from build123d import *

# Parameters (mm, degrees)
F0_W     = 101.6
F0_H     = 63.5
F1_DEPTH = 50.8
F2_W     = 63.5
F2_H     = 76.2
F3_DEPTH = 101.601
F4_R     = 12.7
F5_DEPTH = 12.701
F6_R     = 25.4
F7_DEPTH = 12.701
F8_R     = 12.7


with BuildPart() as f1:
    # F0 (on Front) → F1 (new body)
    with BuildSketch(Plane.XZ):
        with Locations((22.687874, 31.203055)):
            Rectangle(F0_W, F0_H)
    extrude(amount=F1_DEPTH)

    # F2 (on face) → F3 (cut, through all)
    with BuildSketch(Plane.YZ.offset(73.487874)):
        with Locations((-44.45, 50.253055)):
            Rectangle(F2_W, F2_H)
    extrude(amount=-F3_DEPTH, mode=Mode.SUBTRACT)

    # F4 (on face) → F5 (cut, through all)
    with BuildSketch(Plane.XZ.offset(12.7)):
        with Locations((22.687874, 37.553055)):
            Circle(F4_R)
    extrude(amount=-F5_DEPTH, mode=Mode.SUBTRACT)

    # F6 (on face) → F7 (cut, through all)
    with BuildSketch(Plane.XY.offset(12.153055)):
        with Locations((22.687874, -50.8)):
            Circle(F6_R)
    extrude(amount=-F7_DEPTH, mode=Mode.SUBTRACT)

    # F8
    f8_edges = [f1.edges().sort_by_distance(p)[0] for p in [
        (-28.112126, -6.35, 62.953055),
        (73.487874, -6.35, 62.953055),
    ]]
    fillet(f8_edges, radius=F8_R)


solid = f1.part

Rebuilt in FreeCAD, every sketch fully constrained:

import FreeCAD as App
import Part
import Sketcher

V = App.Vector
Q = App.Units.Quantity


def edges_at(feature, points):
    """Names of the edges that pass closest to the given points."""
    edges = feature.Shape.Edges
    near = lambda p: min(range(len(edges)), key=lambda i: edges[i].distToShape(Part.Vertex(*p))[0])
    return sorted({f"Edge{near(p) + 1}" for p in points})


def add_polygon(sketch, points):
    """Adds a closed chain of lines whose ends are joined by coincident constraints."""
    first, n = sketch.GeometryCount, len(points)
    for a, b in zip(points, points[1:] + points[:1]):
        sketch.addGeometry(Part.LineSegment(App.Vector(*a, 0), App.Vector(*b, 0)), False)
    for i in range(n):
        sketch.addConstraint(Sketcher.Constraint("Coincident", first + i, 2, first + (i + 1) % n, 1))

doc = App.newDocument("Part")
params = doc.addObject("Spreadsheet::Sheet", "Params")
for row, (alias, value) in enumerate([
    ("sketch1_width", "4 in"),
    ("sketch1_height", "2.5 in"),
    ("pad1_length", "2 in"),
    ("sketch2_height", "3 in"),
    ("sketch2_width", "2.5 in"),
    ("sketch3_diameter", "1 in"),
    ("sketch4_diameter", "2 in"),
    ("fillet_radius", "0.5 in"),
], start=1):
    params.set(f"A{row}", alias)
    params.set(f"B{row}", "=" + value)
    params.setAlias(f"B{row}", alias)

body = doc.addObject("PartDesign::Body", "Body")

sketch1 = body.newObject("Sketcher::SketchObject", "Sketch")
sketch1.AttachmentSupport = (doc.getObject("XZ_Plane"), [""])
sketch1.MapMode = "FlatFace"
add_polygon(sketch1, [(-28.112126, 62.953055), (-28.112126, -0.546945), (73.487874, -0.546945), (73.487874, 62.953055)])
sketch1.addConstraint(Sketcher.Constraint("Vertical", 0))
sketch1.addConstraint(Sketcher.Constraint("Horizontal", 1))
sketch1.addConstraint(Sketcher.Constraint("Vertical", 2))
sketch1.addConstraint(Sketcher.Constraint("Horizontal", 3))
sketch1.addConstraint(Sketcher.Constraint("DistanceX", 1, 1, 1, 2, Q("4 in")))
sketch1.addConstraint(Sketcher.Constraint("DistanceY", 0, 2, 0, 1, Q("2.5 in")))
sketch1.addConstraint(Sketcher.Constraint("DistanceX", 0, 2, -1, 1, Q("28.112126 mm")))
sketch1.addConstraint(Sketcher.Constraint("DistanceY", 0, 2, -1, 1, Q("0.546945 mm")))
sketch1.setExpression("Constraints[8]", "Params.sketch1_width")
sketch1.setExpression("Constraints[9]", "Params.sketch1_height")
pad1 = body.newObject("PartDesign::Pad", "Pad")
pad1.Profile = sketch1
pad1.setExpression("Length", "Params.pad1_length")

sketch2 = body.newObject("Sketcher::SketchObject", "Sketch001")
sketch2.AttachmentSupport = (doc.getObject("YZ_Plane"), [""])
sketch2.MapMode = "FlatFace"
sketch2.AttachmentOffset = App.Placement(V(0, 0, 73.487874), App.Rotation())
add_polygon(sketch2, [(-76.2, 88.353055), (-76.2, 12.153055), (-12.7, 12.153055), (-12.7, 88.353055)])
sketch2.addConstraint(Sketcher.Constraint("Vertical", 0))
sketch2.addConstraint(Sketcher.Constraint("Horizontal", 1))
sketch2.addConstraint(Sketcher.Constraint("Vertical", 2))
sketch2.addConstraint(Sketcher.Constraint("Horizontal", 3))
sketch2.addConstraint(Sketcher.Constraint("DistanceY", 0, 2, 0, 1, Q("3 in")))
sketch2.addConstraint(Sketcher.Constraint("DistanceX", 1, 1, 1, 2, Q("2.5 in")))
sketch2.addConstraint(Sketcher.Constraint("DistanceX", 0, 2, -1, 1, Q("3 in")))
sketch2.addConstraint(Sketcher.Constraint("DistanceY", -1, 1, 0, 2, Q("12.153055 mm")))
sketch2.setExpression("Constraints[8]", "Params.sketch2_height")
sketch2.setExpression("Constraints[9]", "Params.sketch2_width")
pocket1 = body.newObject("PartDesign::Pocket", "Pocket")
pocket1.Profile = sketch2
pocket1.Type = "ThroughAll"

sketch3 = body.newObject("Sketcher::SketchObject", "Sketch002")
sketch3.AttachmentSupport = (doc.getObject("XZ_Plane"), [""])
sketch3.MapMode = "FlatFace"
sketch3.AttachmentOffset = App.Placement(V(0, 0, 0.5 * 25.4), App.Rotation())
sketch3.addGeometry(Part.Circle(V(22.687874, 37.553055, 0), V(0, 0, 1), 12.7), False)
sketch3.addConstraint(Sketcher.Constraint("Diameter", 0, Q("1 in")))
sketch3.addConstraint(Sketcher.Constraint("DistanceX", -1, 1, 0, 3, Q("22.687874 mm")))
sketch3.addConstraint(Sketcher.Constraint("DistanceY", -1, 1, 0, 3, Q("37.553055 mm")))
sketch3.setExpression("Constraints[0]", "Params.sketch3_diameter")
pocket2 = body.newObject("PartDesign::Pocket", "Pocket001")
pocket2.Profile = sketch3
pocket2.Type = "ThroughAll"

sketch4 = body.newObject("Sketcher::SketchObject", "Sketch003")
sketch4.AttachmentSupport = (doc.getObject("XY_Plane"), [""])
sketch4.MapMode = "FlatFace"
sketch4.AttachmentOffset = App.Placement(V(0, 0, 12.153055), App.Rotation())
sketch4.addGeometry(Part.Circle(V(22.687874, -50.8, 0), V(0, 0, 1), 25.4), False)
sketch4.addConstraint(Sketcher.Constraint("Diameter", 0, Q("2 in")))
sketch4.addConstraint(Sketcher.Constraint("DistanceY", 0, 3, -1, 1, Q("2 in")))
sketch4.addConstraint(Sketcher.Constraint("DistanceX", -1, 1, 0, 3, Q("22.687874 mm")))
sketch4.setExpression("Constraints[0]", "Params.sketch4_diameter")
pocket3 = body.newObject("PartDesign::Pocket", "Pocket002")
pocket3.Profile = sketch4
pocket3.Type = "ThroughAll"
doc.recompute()

fillet = body.newObject("PartDesign::Fillet", "Fillet")
fillet.Base = (pocket3, edges_at(pocket3, [(-28.112, -6.35, 62.953), (73.488, -6.35, 62.953)]))
fillet.setExpression("Radius", "Params.fillet_radius")

doc.recompute()
